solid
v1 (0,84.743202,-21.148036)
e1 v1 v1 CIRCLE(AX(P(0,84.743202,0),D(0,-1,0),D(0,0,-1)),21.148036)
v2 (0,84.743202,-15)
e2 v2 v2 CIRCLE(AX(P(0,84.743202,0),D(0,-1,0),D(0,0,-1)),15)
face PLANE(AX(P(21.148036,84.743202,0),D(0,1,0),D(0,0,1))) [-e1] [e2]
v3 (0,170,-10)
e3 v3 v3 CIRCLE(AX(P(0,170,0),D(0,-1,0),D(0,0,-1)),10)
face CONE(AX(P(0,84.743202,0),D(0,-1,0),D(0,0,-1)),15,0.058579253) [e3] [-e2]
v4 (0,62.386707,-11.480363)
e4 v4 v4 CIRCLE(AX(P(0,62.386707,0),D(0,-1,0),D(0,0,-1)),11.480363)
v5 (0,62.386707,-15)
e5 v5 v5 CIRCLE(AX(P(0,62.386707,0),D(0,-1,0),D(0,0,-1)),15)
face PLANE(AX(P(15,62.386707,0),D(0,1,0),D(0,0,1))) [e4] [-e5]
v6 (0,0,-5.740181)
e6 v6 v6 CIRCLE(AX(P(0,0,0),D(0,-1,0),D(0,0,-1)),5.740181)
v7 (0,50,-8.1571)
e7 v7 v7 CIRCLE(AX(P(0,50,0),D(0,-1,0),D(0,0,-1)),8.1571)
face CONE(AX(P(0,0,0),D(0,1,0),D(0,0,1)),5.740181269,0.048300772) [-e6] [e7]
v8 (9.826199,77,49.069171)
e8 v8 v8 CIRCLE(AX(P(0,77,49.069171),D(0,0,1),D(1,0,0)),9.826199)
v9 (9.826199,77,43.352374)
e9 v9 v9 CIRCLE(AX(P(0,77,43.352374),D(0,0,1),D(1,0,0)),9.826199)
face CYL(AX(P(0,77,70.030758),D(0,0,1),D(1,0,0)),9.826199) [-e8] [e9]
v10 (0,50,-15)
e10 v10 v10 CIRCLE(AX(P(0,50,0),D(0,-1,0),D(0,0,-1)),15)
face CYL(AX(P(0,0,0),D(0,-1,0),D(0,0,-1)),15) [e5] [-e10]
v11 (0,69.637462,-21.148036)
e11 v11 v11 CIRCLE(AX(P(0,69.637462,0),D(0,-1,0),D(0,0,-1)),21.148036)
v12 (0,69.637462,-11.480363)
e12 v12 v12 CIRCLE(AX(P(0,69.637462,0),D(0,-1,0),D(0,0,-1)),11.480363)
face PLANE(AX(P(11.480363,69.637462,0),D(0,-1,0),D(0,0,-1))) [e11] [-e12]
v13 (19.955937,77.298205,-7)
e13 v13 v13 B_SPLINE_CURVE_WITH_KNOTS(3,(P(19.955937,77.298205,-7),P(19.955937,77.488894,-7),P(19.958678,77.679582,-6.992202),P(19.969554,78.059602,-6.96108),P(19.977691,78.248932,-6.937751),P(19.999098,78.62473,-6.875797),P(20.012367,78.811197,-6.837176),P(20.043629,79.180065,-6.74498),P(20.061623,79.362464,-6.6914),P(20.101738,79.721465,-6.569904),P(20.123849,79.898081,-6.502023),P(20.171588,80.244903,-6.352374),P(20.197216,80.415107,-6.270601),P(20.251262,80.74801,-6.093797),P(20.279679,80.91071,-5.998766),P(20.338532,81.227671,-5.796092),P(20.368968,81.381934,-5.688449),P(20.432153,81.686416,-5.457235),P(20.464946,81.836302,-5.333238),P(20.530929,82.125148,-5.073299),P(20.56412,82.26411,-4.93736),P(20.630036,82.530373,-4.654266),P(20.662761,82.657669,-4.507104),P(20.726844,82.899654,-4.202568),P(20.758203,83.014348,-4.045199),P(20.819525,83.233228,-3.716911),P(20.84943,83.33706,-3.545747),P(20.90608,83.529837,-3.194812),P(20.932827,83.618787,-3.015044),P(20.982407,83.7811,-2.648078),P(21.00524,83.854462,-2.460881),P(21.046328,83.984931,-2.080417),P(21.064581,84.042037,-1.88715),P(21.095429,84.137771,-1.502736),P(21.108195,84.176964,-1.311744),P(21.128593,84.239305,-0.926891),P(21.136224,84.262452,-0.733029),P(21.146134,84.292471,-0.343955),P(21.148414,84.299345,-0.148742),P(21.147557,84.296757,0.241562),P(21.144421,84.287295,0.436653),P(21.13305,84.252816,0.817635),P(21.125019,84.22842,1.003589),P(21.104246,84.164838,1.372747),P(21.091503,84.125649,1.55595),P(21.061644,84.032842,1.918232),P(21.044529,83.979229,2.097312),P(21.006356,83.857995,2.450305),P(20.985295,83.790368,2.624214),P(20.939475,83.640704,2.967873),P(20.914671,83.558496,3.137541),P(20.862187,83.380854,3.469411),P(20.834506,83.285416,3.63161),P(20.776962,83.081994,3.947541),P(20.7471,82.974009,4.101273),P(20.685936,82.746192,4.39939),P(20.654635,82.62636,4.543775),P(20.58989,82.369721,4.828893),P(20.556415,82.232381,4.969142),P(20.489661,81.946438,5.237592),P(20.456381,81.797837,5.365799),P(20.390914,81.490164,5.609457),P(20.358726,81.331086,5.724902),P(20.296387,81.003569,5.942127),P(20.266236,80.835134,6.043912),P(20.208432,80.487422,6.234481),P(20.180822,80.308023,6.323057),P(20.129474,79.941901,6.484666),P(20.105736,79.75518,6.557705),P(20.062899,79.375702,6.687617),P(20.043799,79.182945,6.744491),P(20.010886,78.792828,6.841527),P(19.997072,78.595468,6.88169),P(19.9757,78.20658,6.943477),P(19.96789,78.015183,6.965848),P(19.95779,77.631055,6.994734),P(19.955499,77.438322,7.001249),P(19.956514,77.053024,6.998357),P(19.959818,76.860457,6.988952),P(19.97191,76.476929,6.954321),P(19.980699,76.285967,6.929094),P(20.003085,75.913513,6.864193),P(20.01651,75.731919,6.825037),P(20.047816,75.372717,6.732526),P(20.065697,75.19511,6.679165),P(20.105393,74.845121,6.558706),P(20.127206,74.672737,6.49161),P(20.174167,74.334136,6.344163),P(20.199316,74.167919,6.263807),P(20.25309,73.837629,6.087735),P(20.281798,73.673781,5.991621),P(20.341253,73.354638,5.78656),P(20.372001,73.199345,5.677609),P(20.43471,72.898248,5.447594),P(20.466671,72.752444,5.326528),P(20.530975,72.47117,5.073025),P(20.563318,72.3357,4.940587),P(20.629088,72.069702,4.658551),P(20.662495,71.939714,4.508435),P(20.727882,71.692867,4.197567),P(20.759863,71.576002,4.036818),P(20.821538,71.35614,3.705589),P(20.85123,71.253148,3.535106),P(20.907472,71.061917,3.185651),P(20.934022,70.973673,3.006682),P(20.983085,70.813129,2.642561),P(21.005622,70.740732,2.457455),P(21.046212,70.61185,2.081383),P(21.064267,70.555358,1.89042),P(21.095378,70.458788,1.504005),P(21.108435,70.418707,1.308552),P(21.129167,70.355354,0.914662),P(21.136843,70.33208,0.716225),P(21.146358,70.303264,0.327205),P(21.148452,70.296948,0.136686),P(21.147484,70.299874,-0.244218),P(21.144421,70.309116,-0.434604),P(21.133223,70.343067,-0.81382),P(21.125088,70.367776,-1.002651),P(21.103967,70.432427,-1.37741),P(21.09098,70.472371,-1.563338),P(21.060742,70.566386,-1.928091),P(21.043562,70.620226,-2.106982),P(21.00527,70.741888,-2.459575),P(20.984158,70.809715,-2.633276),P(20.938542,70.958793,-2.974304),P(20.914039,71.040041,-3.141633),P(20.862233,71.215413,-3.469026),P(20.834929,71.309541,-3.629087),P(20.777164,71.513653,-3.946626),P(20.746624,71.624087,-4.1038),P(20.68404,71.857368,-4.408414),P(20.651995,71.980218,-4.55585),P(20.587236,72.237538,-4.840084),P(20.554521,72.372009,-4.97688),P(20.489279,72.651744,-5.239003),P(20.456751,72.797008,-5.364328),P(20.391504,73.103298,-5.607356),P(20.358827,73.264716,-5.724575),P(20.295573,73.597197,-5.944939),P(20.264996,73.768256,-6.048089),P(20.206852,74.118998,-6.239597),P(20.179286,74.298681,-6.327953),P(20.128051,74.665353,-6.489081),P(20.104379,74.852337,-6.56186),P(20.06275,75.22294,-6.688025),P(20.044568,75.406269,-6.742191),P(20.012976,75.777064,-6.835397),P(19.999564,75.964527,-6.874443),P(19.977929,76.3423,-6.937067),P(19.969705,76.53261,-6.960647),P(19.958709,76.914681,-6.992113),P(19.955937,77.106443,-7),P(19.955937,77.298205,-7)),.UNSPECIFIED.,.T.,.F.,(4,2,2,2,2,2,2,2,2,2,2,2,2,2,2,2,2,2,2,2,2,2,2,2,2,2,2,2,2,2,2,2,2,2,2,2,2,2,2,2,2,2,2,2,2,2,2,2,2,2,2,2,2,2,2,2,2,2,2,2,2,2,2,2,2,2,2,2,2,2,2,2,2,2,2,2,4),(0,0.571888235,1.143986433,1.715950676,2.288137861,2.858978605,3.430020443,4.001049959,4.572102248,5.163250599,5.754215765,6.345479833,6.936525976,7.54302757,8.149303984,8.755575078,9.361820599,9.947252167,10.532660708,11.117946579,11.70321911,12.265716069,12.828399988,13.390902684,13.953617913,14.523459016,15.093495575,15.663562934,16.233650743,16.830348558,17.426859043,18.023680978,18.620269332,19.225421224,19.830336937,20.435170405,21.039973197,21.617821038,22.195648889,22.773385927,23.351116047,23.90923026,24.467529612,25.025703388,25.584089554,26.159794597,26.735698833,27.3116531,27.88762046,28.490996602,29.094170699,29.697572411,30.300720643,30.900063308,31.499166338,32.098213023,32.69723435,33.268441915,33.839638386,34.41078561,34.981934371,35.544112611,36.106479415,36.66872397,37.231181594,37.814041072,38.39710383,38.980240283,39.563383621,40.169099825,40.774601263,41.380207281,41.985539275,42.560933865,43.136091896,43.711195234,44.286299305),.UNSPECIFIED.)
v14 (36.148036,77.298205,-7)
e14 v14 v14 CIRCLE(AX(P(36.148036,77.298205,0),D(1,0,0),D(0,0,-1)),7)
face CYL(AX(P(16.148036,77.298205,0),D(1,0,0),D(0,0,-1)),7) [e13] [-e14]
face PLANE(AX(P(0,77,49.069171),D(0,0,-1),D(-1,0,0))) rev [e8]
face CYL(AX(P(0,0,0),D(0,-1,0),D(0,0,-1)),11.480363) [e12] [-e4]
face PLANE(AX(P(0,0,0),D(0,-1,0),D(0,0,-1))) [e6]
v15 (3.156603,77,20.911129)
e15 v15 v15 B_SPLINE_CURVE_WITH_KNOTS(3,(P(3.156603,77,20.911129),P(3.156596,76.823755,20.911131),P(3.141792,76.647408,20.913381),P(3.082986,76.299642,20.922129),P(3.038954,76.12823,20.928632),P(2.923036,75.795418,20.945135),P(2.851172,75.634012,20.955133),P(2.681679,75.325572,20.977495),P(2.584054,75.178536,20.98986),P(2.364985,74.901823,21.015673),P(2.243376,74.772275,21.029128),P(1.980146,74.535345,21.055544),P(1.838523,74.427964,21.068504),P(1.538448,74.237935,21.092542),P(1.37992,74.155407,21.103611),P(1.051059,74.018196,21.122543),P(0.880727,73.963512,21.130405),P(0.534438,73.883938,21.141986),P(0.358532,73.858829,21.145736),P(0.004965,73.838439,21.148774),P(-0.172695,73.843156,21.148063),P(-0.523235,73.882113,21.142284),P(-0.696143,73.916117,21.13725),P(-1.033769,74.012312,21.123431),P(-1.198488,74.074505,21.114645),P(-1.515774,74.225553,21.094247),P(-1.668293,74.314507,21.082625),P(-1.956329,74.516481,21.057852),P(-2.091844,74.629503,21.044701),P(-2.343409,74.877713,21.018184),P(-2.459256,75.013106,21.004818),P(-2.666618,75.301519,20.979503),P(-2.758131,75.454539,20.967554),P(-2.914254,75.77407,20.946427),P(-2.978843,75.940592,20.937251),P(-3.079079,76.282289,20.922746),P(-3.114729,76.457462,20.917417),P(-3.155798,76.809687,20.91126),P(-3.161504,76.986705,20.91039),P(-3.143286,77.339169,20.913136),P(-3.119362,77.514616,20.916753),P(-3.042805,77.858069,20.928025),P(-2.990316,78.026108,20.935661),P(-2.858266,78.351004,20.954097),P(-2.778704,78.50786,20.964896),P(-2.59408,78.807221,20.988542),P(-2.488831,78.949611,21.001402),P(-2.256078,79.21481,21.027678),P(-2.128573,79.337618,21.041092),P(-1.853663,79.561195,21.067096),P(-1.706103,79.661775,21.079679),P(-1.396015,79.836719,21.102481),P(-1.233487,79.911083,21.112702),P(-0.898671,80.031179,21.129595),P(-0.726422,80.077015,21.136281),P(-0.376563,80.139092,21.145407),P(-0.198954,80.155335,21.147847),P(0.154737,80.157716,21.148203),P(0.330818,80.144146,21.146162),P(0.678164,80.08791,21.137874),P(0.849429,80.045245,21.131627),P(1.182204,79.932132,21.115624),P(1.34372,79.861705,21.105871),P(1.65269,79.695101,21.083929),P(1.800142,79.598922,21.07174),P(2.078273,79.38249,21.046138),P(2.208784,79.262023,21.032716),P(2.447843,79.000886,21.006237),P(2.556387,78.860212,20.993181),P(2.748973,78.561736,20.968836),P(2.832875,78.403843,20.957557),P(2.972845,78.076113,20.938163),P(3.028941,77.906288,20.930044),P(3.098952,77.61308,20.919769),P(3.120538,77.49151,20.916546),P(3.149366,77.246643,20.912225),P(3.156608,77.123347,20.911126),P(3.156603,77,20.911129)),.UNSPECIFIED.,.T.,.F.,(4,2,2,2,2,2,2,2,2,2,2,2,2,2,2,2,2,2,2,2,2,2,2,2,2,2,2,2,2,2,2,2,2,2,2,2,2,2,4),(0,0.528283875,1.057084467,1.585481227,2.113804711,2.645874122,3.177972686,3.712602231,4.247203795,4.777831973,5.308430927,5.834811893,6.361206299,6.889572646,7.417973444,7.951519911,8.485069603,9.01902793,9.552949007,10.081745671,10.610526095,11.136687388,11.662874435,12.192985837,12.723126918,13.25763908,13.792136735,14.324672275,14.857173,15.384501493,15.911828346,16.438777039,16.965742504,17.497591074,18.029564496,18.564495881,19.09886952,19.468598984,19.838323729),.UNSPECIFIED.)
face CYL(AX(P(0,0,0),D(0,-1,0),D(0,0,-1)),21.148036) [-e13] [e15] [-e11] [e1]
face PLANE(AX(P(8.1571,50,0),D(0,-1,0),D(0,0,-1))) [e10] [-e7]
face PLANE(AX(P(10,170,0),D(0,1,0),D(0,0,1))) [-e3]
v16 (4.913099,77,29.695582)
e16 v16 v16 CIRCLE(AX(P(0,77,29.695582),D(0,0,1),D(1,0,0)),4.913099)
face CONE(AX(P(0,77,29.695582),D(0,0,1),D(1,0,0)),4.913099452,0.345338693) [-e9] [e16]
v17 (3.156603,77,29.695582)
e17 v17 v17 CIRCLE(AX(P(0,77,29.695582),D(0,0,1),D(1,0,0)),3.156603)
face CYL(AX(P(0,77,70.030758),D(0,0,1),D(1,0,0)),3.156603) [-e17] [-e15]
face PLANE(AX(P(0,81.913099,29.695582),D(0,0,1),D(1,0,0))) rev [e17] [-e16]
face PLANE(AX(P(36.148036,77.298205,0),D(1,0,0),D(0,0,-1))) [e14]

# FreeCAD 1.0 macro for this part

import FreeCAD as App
import Part
import Sketcher

doc = App.newDocument("Part")
body = doc.addObject("PartDesign::Body", "Body")

# Sketch on XY plane
sketch1 = doc.addObject("Sketcher::SketchObject", "Sketch")
body.addObject(sketch1)
sketch1.AttachmentSupport = (doc.XY_Plane, [""])
sketch1.MapMode = "FlatFace"
sketch1.addGeometry([
    Part.LineSegment(App.Vector(0, 0, 0), App.Vector(5.7, 0, 0)),  # 0
    Part.LineSegment(App.Vector(5.7, 0, 0), App.Vector(8.2, 50, 0)),  # 1
    Part.LineSegment(App.Vector(8.2, 50, 0), App.Vector(15, 50, 0)),  # 2
    Part.LineSegment(App.Vector(15, 50, 0), App.Vector(15, 62.4, 0)),  # 3
    Part.LineSegment(App.Vector(15, 62.4, 0), App.Vector(11.5, 62.4, 0)),  # 4
    Part.LineSegment(App.Vector(11.5, 62.4, 0), App.Vector(11.5, 69.6, 0)),  # 5
    Part.LineSegment(App.Vector(11.5, 69.6, 0), App.Vector(21.1, 69.6, 0)),  # 6
    Part.LineSegment(App.Vector(21.1, 69.6, 0), App.Vector(21.1, 84.7, 0)),  # 7
    Part.LineSegment(App.Vector(21.1, 84.7, 0), App.Vector(15, 84.7, 0)),  # 8
    Part.LineSegment(App.Vector(15, 84.7, 0), App.Vector(10, 170, 0)),  # 9
    Part.LineSegment(App.Vector(10, 170, 0), App.Vector(0, 170, 0)),  # 10
    Part.LineSegment(App.Vector(0, 170, 0), App.Vector(0, 0, 0)),  # 11
], False)
sketch1.addConstraint([
    Sketcher.Constraint("Coincident", 0, 2, 1, 1),
    Sketcher.Constraint("Coincident", 1, 2, 2, 1),
    Sketcher.Constraint("Coincident", 2, 2, 3, 1),
    Sketcher.Constraint("Coincident", 3, 2, 4, 1),
    Sketcher.Constraint("Coincident", 4, 2, 5, 1),
    Sketcher.Constraint("Coincident", 5, 2, 6, 1),
    Sketcher.Constraint("Coincident", 6, 2, 7, 1),
    Sketcher.Constraint("Coincident", 7, 2, 8, 1),
    Sketcher.Constraint("Coincident", 8, 2, 9, 1),
    Sketcher.Constraint("Coincident", 9, 2, 10, 1),
    Sketcher.Constraint("Coincident", 10, 2, 11, 1),
    Sketcher.Constraint("Coincident", 11, 2, 0, 1),
    Sketcher.Constraint("Horizontal", 0),
    Sketcher.Constraint("Horizontal", 2),
    Sketcher.Constraint("Vertical", 3),
    Sketcher.Constraint("Horizontal", 4),
    Sketcher.Constraint("Vertical", 5),
    Sketcher.Constraint("Horizontal", 6),
    Sketcher.Constraint("Vertical", 7),
    Sketcher.Constraint("Horizontal", 8),
    Sketcher.Constraint("Horizontal", 10),
    Sketcher.Constraint("Vertical", 11),
    Sketcher.Constraint("Coincident", 11, 2, -1, 1),
    Sketcher.Constraint("Vertical", 3, 2, 8, 2),
    Sketcher.Constraint("DistanceX", 10, 2, 10, 1, 10.0),
    Sketcher.Constraint("DistanceY", 11, 2, 11, 1, 170.0),
    Sketcher.Constraint("DistanceY", -1, 1, 1, 2, 50.0),
    Sketcher.Constraint("DistanceX", -1, 1, 2, 2, 15.0),
    Sketcher.Constraint("DistanceX", 2, 1, 2, 2, 6.8429),
    Sketcher.Constraint("DistanceX", 0, 1, 0, 2, 5.740181),
    Sketcher.Constraint("DistanceY", 7, 1, 7, 2, 15.10574),
    Sketcher.Constraint("DistanceX", 4, 2, 4, 1, 3.519637),
    Sketcher.Constraint("DistanceX", 6, 1, 6, 2, 9.667674),
    Sketcher.Constraint("DistanceY", 3, 1, 3, 2, 12.386707),
    Sketcher.Constraint("DistanceY", 5, 1, 5, 2, 7.250755),
])
revolution = doc.addObject("PartDesign::Revolution", "Revolution")
body.addObject(revolution)
revolution.Profile = sketch1
revolution.ReferenceAxis = (sketch1, ["V_Axis"])
revolution.Angle = 360

# Sketch on YZ plane
sketch2 = doc.addObject("Sketcher::SketchObject", "Sketch001")
body.addObject(sketch2)
sketch2.AttachmentSupport = (doc.YZ_Plane, [""])
sketch2.MapMode = "FlatFace"
sketch2.AttachmentOffset = App.Placement(App.Vector(0, 0, 21.148036), App.Rotation())
sketch2.addGeometry(Part.Circle(App.Vector(77, 0, 0), App.Vector(0, 0, 1), 7), False)
sketch2.addConstraint([
    Sketcher.Constraint("PointOnObject", 0, 3, -1),
    Sketcher.Constraint("Diameter", 0, 14.0),
    Sketcher.Constraint("DistanceX", -1, 1, 0, 3, 77.298205),
])
pad1 = doc.addObject("PartDesign::Pad", "Pad")
body.addObject(pad1)
pad1.Profile = sketch2
pad1.Type = "TwoLengths"
pad1.Length = 15
pad1.Length2 = 5

# Sketch on YZ plane
sketch3 = doc.addObject("Sketcher::SketchObject", "Sketch002")
body.addObject(sketch3)
sketch3.AttachmentSupport = (doc.YZ_Plane, [""])
sketch3.MapMode = "FlatFace"
sketch3.addGeometry([
    Part.LineSegment(App.Vector(86.8, 49.1, 0), App.Vector(77, 49.1, 0)),  # 0
    Part.LineSegment(App.Vector(77, 49.1, 0), App.Vector(77, 20.2, 0)),  # 1
    Part.LineSegment(App.Vector(77, 20.2, 0), App.Vector(80.2, 20.2, 0)),  # 2
    Part.LineSegment(App.Vector(80.2, 20.2, 0), App.Vector(80.2, 29.7, 0)),  # 3
    Part.LineSegment(App.Vector(80.2, 29.7, 0), App.Vector(81.9, 29.7, 0)),  # 4
    Part.LineSegment(App.Vector(81.9, 29.7, 0), App.Vector(86.8, 43.4, 0)),  # 5
    Part.LineSegment(App.Vector(86.8, 43.4, 0), App.Vector(86.8, 49.1, 0)),  # 6
], False)
sketch3.addGeometry(Part.LineSegment(App.Vector(77, 49.1, 0), App.Vector(77, 20.2, 0)), True)  # axis
sketch3.addConstraint([
    Sketcher.Constraint("Coincident", 0, 2, 1, 1),
    Sketcher.Constraint("Coincident", 1, 2, 2, 1),
    Sketcher.Constraint("Coincident", 2, 2, 3, 1),
    Sketcher.Constraint("Coincident", 3, 2, 4, 1),
    Sketcher.Constraint("Coincident", 4, 2, 5, 1),
    Sketcher.Constraint("Coincident", 5, 2, 6, 1),
    Sketcher.Constraint("Coincident", 6, 2, 0, 1),
    Sketcher.Constraint("Horizontal", 0),
    Sketcher.Constraint("Vertical", 1),
    Sketcher.Constraint("Horizontal", 2),
    Sketcher.Constraint("Vertical", 3),
    Sketcher.Constraint("Horizontal", 4),
    Sketcher.Constraint("Vertical", 6),
    Sketcher.Constraint("Vertical", 7),
    Sketcher.Constraint("Coincident", 7, 1, 0, 2),
    Sketcher.Constraint("Horizontal", 2, 2, 7, 2),
    Sketcher.Constraint("DistanceX", -1, 1, 0, 2, 77.0),
    Sketcher.Constraint("DistanceX", 0, 2, 0, 1, 9.826199),
    Sketcher.Constraint("DistanceX", -1, 1, 4, 2, 81.913099),
    Sketcher.Constraint("DistanceX", 2, 1, 2, 2, 3.156603),
    Sketcher.Constraint("DistanceY", 1, 2, 1, 1, 28.901583),
    Sketcher.Constraint("DistanceY", 3, 1, 3, 2, 9.527994),
    Sketcher.Constraint("DistanceY", 6, 1, 6, 2, 5.716797),
    Sketcher.Constraint("DistanceY", -1, 1, 0, 2, 49.069171),
])
revolution2 = doc.addObject("PartDesign::Revolution", "Revolution001")
body.addObject(revolution2)
revolution2.Profile = sketch3
revolution2.ReferenceAxis = (sketch3, ["Axis0"])
revolution2.Angle = 360

doc.recompute()
